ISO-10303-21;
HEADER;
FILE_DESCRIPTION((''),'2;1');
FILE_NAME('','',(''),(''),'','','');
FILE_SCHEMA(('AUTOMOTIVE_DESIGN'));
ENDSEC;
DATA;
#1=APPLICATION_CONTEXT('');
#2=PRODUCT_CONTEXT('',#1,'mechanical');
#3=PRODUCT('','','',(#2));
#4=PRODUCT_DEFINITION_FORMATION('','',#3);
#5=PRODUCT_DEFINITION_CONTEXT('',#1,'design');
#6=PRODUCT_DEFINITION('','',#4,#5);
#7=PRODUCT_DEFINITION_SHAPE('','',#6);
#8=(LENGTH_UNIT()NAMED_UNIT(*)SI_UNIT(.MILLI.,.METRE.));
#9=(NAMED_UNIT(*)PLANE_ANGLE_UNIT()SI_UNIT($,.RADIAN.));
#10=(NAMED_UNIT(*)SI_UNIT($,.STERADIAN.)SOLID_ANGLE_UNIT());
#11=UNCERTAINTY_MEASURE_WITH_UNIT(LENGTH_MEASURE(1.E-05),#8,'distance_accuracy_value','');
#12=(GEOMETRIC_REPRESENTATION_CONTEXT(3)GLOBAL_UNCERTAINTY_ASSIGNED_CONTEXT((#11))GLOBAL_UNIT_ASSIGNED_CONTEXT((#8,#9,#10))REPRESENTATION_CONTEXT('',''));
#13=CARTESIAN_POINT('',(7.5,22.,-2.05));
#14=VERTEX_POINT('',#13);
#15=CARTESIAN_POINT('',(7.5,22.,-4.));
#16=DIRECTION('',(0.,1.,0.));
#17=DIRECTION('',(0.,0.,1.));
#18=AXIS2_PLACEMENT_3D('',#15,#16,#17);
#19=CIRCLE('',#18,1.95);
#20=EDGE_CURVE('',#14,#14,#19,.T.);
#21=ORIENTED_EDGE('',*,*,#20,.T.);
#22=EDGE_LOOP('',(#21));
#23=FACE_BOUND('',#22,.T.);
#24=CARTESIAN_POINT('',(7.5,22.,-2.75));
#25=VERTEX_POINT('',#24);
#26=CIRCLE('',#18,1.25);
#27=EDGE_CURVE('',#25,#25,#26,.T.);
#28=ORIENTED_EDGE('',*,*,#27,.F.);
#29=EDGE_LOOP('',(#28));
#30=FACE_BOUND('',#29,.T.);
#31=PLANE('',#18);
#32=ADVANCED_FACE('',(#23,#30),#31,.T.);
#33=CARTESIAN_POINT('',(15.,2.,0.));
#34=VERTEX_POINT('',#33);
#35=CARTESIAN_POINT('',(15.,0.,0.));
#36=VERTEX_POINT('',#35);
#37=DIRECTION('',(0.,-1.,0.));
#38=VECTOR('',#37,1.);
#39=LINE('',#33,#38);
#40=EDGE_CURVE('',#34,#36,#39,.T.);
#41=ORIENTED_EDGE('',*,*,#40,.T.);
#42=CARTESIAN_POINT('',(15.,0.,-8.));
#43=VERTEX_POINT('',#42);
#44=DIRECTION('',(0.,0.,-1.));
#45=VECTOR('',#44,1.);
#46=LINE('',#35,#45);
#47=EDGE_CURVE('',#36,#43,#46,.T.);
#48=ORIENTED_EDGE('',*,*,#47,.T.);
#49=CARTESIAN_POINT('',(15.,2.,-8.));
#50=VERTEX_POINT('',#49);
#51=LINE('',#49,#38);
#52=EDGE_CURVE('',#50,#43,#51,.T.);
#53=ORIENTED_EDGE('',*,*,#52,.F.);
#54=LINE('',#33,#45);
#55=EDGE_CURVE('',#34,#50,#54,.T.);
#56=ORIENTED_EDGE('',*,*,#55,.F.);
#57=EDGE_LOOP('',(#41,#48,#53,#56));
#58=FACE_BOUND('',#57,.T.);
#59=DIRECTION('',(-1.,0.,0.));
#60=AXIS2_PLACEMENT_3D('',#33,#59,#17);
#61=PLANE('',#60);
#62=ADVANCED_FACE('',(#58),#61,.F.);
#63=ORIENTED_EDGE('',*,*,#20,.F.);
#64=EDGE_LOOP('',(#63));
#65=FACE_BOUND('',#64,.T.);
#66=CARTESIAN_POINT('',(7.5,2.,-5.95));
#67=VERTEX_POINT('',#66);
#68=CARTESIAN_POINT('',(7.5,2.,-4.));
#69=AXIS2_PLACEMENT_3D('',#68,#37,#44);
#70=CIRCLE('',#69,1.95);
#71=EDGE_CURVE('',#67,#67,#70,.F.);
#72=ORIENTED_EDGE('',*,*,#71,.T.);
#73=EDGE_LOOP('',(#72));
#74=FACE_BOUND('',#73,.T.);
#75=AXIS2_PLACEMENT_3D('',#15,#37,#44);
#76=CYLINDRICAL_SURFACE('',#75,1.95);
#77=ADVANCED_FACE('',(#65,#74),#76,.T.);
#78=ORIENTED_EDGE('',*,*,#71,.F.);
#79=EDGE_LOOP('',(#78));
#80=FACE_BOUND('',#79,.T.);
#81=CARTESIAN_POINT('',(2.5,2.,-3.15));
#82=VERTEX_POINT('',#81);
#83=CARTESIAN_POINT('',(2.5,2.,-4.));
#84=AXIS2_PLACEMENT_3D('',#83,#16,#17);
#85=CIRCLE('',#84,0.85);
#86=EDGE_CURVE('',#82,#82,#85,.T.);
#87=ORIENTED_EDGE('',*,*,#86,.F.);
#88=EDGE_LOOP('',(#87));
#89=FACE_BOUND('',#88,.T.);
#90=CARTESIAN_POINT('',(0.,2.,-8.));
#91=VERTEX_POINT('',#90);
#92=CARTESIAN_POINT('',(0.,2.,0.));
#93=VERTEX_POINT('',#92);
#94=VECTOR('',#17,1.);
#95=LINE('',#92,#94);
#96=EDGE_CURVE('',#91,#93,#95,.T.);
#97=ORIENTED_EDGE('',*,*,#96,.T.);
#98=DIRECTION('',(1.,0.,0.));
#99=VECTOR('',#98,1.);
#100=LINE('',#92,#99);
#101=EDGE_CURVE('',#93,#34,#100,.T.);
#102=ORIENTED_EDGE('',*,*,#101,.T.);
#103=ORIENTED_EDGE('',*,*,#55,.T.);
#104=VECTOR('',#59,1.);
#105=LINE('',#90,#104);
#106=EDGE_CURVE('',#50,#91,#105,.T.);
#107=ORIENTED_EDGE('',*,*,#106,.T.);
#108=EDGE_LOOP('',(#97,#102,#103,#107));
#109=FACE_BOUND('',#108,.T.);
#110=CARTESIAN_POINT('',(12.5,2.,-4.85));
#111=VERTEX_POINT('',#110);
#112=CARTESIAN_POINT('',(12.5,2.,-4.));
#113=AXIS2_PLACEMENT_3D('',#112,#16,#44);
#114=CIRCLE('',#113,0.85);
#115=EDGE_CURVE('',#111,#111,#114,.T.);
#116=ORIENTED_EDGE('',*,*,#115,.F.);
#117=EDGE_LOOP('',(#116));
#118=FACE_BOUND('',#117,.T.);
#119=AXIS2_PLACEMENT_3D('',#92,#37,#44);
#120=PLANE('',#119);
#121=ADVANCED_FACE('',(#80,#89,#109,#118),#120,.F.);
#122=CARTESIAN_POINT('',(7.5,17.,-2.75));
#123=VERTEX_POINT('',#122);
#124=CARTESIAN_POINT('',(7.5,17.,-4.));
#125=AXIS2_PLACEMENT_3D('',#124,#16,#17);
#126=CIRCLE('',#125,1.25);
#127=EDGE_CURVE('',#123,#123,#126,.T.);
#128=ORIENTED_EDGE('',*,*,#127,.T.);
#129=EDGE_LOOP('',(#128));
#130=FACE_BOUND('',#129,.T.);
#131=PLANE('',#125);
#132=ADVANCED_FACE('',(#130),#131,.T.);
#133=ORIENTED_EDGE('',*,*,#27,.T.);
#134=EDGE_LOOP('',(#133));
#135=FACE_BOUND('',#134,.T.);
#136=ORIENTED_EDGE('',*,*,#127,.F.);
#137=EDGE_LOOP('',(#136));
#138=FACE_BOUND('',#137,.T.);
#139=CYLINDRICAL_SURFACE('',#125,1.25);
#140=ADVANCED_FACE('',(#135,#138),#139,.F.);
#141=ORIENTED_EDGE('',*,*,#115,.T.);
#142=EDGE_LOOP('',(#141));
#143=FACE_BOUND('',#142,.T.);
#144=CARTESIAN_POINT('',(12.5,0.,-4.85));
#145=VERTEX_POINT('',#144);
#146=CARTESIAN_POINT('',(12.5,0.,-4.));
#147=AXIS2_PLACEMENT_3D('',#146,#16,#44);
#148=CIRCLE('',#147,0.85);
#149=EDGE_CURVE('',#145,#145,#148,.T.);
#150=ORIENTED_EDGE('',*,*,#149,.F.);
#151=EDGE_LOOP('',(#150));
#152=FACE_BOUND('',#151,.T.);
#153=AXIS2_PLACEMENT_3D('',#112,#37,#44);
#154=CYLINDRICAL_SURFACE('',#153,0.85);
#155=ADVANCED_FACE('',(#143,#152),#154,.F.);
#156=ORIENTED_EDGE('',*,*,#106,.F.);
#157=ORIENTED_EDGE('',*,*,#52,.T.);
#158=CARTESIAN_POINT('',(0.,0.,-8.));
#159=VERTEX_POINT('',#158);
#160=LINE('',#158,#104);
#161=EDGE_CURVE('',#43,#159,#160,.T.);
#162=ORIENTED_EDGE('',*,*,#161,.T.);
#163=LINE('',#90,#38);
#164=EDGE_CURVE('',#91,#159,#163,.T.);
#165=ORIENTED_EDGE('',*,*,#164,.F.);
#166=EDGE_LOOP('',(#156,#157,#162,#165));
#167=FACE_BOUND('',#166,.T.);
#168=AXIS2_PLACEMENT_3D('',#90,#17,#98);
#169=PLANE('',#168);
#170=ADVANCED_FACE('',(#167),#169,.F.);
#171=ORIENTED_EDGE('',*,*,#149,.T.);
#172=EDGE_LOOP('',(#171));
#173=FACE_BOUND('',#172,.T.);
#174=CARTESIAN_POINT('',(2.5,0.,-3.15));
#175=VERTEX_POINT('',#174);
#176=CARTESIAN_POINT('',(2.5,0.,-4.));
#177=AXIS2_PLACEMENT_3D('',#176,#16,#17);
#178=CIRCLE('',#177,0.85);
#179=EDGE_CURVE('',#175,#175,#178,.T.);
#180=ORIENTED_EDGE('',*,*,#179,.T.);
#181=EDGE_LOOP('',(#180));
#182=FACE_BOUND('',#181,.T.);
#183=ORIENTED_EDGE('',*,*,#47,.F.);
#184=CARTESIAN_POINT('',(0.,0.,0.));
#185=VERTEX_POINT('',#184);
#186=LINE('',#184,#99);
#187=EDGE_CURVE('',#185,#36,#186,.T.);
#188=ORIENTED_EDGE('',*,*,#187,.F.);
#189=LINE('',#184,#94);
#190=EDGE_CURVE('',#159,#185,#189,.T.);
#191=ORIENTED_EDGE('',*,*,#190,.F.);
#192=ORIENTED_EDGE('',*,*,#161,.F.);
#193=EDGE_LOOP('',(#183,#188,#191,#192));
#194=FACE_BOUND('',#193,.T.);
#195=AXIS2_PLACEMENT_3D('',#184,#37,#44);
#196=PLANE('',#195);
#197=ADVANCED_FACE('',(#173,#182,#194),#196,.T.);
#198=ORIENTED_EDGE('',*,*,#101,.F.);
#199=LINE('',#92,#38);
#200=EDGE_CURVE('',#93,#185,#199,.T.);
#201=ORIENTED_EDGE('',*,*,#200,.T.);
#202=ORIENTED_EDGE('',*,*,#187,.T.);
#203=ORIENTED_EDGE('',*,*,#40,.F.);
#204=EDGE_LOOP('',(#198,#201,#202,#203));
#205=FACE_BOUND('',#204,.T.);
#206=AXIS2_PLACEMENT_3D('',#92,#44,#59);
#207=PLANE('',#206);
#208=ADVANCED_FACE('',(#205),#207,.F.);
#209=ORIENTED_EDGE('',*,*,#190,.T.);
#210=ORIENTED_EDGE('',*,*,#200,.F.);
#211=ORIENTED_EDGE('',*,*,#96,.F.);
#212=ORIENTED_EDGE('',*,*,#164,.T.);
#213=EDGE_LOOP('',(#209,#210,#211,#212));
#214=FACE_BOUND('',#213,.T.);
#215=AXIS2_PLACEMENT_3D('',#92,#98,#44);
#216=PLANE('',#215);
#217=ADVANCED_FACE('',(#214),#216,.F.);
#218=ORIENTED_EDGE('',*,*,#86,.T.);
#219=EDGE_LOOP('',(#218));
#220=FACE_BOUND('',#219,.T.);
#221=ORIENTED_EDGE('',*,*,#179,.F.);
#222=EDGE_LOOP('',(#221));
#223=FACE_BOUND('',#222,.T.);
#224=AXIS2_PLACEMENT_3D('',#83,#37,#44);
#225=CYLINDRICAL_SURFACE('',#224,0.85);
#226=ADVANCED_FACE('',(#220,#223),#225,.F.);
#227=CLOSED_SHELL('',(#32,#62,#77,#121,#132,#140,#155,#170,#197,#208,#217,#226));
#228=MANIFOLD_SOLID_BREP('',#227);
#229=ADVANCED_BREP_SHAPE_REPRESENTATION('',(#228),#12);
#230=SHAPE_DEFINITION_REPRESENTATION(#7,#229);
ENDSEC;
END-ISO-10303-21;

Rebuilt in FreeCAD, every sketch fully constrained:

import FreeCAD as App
import Part
import Sketcher
Q = App.Units.Quantity


def add_polygon(sketch, points):
    """Adds a closed chain of lines whose ends are joined by coincident constraints."""
    first, n = sketch.GeometryCount, len(points)
    for a, b in zip(points, points[1:] + points[:1]):
        sketch.addGeometry(Part.LineSegment(App.Vector(*a, 0), App.Vector(*b, 0)), False)
    for i in range(n):
        sketch.addConstraint(Sketcher.Constraint("Coincident", first + i, 2, first + (i + 1) % n, 1))

doc = App.newDocument("Part")
body = doc.addObject("PartDesign::Body", "Body")

# Sketch on XZ plane
sketch1 = body.newObject("Sketcher::SketchObject", "Sketch")
sketch1.AttachmentSupport = (doc.getObject("XZ_Plane"), [""])
sketch1.MapMode = "FlatFace"
add_polygon(sketch1, [(0, -8), (0, 0), (15, 0), (15, -8)])  # lines 0-3
sketch1.addGeometry(Part.Circle(App.Vector(2.5, -4, 0), App.Vector(0, 0, 1), 0.85), False)  # 4
sketch1.addGeometry(Part.Circle(App.Vector(12.5, -4, 0), App.Vector(0, 0, 1), 0.85), False)  # 5
sketch1.addConstraint([
    Sketcher.Constraint("Vertical", 0),
    Sketcher.Constraint("Horizontal", 1),
    Sketcher.Constraint("Vertical", 2),
    Sketcher.Constraint("Horizontal", 3),
    Sketcher.Constraint("Coincident", 0, 2, -1, 1),
    Sketcher.Constraint("Equal", 4, 5),
    Sketcher.Constraint("Horizontal", 4, 3, 5, 3),
    Sketcher.Constraint("Diameter", 4, Q("1.7 mm")),
    Sketcher.Constraint("DistanceX", 1, 1, 1, 2, Q("15 mm")),
    Sketcher.Constraint("DistanceY", 0, 1, 0, 2, Q("8 mm")),
    Sketcher.Constraint("DistanceY", 4, 3, -1, 1, Q("4 mm")),
    Sketcher.Constraint("DistanceX", 4, 3, 5, 3, Q("10 mm")),
    Sketcher.Constraint("DistanceX", -1, 1, 4, 3, Q("2.5 mm")),
])
pad1 = body.newObject("PartDesign::Pad", "Pad")
pad1.Profile = sketch1
pad1.Length = 2
pad1.Reversed = True

# Sketch on XZ plane
sketch2 = body.newObject("Sketcher::SketchObject", "Sketch001")
sketch2.AttachmentSupport = (doc.getObject("XZ_Plane"), [""])
sketch2.MapMode = "FlatFace"
sketch2.AttachmentOffset = App.Placement(App.Vector(0, 0, -2), App.Rotation())
sketch2.addGeometry(Part.Circle(App.Vector(7.5, -4, 0), App.Vector(0, 0, 1), 1.95), False)
sketch2.addConstraint([
    Sketcher.Constraint("Diameter", 0, Q("3.9 mm")),
    Sketcher.Constraint("DistanceY", 0, 3, -1, 1, Q("4 mm")),
    Sketcher.Constraint("DistanceX", -1, 1, 0, 3, Q("7.5 mm")),
])
pad2 = body.newObject("PartDesign::Pad", "Pad001")
pad2.Profile = sketch2
pad2.Length = 20
pad2.Reversed = True

# Sketch on XZ plane
sketch3 = body.newObject("Sketcher::SketchObject", "Sketch002")
sketch3.AttachmentSupport = (doc.getObject("XZ_Plane"), [""])
sketch3.MapMode = "FlatFace"
sketch3.AttachmentOffset = App.Placement(App.Vector(0, 0, -22), App.Rotation())
sketch3.addGeometry(Part.Circle(App.Vector(7.5, -4, 0), App.Vector(0, 0, 1), 1.25), False)
sketch3.addConstraint([
    Sketcher.Constraint("Diameter", 0, Q("2.5 mm")),
    Sketcher.Constraint("DistanceY", 0, 3, -1, 1, Q("4 mm")),
    Sketcher.Constraint("DistanceX", -1, 1, 0, 3, Q("7.5 mm")),
])
pocket1 = body.newObject("PartDesign::Pocket", "Pocket")
pocket1.Profile = sketch3
pocket1.Length = 5
pocket1.Reversed = True

doc.recompute()
